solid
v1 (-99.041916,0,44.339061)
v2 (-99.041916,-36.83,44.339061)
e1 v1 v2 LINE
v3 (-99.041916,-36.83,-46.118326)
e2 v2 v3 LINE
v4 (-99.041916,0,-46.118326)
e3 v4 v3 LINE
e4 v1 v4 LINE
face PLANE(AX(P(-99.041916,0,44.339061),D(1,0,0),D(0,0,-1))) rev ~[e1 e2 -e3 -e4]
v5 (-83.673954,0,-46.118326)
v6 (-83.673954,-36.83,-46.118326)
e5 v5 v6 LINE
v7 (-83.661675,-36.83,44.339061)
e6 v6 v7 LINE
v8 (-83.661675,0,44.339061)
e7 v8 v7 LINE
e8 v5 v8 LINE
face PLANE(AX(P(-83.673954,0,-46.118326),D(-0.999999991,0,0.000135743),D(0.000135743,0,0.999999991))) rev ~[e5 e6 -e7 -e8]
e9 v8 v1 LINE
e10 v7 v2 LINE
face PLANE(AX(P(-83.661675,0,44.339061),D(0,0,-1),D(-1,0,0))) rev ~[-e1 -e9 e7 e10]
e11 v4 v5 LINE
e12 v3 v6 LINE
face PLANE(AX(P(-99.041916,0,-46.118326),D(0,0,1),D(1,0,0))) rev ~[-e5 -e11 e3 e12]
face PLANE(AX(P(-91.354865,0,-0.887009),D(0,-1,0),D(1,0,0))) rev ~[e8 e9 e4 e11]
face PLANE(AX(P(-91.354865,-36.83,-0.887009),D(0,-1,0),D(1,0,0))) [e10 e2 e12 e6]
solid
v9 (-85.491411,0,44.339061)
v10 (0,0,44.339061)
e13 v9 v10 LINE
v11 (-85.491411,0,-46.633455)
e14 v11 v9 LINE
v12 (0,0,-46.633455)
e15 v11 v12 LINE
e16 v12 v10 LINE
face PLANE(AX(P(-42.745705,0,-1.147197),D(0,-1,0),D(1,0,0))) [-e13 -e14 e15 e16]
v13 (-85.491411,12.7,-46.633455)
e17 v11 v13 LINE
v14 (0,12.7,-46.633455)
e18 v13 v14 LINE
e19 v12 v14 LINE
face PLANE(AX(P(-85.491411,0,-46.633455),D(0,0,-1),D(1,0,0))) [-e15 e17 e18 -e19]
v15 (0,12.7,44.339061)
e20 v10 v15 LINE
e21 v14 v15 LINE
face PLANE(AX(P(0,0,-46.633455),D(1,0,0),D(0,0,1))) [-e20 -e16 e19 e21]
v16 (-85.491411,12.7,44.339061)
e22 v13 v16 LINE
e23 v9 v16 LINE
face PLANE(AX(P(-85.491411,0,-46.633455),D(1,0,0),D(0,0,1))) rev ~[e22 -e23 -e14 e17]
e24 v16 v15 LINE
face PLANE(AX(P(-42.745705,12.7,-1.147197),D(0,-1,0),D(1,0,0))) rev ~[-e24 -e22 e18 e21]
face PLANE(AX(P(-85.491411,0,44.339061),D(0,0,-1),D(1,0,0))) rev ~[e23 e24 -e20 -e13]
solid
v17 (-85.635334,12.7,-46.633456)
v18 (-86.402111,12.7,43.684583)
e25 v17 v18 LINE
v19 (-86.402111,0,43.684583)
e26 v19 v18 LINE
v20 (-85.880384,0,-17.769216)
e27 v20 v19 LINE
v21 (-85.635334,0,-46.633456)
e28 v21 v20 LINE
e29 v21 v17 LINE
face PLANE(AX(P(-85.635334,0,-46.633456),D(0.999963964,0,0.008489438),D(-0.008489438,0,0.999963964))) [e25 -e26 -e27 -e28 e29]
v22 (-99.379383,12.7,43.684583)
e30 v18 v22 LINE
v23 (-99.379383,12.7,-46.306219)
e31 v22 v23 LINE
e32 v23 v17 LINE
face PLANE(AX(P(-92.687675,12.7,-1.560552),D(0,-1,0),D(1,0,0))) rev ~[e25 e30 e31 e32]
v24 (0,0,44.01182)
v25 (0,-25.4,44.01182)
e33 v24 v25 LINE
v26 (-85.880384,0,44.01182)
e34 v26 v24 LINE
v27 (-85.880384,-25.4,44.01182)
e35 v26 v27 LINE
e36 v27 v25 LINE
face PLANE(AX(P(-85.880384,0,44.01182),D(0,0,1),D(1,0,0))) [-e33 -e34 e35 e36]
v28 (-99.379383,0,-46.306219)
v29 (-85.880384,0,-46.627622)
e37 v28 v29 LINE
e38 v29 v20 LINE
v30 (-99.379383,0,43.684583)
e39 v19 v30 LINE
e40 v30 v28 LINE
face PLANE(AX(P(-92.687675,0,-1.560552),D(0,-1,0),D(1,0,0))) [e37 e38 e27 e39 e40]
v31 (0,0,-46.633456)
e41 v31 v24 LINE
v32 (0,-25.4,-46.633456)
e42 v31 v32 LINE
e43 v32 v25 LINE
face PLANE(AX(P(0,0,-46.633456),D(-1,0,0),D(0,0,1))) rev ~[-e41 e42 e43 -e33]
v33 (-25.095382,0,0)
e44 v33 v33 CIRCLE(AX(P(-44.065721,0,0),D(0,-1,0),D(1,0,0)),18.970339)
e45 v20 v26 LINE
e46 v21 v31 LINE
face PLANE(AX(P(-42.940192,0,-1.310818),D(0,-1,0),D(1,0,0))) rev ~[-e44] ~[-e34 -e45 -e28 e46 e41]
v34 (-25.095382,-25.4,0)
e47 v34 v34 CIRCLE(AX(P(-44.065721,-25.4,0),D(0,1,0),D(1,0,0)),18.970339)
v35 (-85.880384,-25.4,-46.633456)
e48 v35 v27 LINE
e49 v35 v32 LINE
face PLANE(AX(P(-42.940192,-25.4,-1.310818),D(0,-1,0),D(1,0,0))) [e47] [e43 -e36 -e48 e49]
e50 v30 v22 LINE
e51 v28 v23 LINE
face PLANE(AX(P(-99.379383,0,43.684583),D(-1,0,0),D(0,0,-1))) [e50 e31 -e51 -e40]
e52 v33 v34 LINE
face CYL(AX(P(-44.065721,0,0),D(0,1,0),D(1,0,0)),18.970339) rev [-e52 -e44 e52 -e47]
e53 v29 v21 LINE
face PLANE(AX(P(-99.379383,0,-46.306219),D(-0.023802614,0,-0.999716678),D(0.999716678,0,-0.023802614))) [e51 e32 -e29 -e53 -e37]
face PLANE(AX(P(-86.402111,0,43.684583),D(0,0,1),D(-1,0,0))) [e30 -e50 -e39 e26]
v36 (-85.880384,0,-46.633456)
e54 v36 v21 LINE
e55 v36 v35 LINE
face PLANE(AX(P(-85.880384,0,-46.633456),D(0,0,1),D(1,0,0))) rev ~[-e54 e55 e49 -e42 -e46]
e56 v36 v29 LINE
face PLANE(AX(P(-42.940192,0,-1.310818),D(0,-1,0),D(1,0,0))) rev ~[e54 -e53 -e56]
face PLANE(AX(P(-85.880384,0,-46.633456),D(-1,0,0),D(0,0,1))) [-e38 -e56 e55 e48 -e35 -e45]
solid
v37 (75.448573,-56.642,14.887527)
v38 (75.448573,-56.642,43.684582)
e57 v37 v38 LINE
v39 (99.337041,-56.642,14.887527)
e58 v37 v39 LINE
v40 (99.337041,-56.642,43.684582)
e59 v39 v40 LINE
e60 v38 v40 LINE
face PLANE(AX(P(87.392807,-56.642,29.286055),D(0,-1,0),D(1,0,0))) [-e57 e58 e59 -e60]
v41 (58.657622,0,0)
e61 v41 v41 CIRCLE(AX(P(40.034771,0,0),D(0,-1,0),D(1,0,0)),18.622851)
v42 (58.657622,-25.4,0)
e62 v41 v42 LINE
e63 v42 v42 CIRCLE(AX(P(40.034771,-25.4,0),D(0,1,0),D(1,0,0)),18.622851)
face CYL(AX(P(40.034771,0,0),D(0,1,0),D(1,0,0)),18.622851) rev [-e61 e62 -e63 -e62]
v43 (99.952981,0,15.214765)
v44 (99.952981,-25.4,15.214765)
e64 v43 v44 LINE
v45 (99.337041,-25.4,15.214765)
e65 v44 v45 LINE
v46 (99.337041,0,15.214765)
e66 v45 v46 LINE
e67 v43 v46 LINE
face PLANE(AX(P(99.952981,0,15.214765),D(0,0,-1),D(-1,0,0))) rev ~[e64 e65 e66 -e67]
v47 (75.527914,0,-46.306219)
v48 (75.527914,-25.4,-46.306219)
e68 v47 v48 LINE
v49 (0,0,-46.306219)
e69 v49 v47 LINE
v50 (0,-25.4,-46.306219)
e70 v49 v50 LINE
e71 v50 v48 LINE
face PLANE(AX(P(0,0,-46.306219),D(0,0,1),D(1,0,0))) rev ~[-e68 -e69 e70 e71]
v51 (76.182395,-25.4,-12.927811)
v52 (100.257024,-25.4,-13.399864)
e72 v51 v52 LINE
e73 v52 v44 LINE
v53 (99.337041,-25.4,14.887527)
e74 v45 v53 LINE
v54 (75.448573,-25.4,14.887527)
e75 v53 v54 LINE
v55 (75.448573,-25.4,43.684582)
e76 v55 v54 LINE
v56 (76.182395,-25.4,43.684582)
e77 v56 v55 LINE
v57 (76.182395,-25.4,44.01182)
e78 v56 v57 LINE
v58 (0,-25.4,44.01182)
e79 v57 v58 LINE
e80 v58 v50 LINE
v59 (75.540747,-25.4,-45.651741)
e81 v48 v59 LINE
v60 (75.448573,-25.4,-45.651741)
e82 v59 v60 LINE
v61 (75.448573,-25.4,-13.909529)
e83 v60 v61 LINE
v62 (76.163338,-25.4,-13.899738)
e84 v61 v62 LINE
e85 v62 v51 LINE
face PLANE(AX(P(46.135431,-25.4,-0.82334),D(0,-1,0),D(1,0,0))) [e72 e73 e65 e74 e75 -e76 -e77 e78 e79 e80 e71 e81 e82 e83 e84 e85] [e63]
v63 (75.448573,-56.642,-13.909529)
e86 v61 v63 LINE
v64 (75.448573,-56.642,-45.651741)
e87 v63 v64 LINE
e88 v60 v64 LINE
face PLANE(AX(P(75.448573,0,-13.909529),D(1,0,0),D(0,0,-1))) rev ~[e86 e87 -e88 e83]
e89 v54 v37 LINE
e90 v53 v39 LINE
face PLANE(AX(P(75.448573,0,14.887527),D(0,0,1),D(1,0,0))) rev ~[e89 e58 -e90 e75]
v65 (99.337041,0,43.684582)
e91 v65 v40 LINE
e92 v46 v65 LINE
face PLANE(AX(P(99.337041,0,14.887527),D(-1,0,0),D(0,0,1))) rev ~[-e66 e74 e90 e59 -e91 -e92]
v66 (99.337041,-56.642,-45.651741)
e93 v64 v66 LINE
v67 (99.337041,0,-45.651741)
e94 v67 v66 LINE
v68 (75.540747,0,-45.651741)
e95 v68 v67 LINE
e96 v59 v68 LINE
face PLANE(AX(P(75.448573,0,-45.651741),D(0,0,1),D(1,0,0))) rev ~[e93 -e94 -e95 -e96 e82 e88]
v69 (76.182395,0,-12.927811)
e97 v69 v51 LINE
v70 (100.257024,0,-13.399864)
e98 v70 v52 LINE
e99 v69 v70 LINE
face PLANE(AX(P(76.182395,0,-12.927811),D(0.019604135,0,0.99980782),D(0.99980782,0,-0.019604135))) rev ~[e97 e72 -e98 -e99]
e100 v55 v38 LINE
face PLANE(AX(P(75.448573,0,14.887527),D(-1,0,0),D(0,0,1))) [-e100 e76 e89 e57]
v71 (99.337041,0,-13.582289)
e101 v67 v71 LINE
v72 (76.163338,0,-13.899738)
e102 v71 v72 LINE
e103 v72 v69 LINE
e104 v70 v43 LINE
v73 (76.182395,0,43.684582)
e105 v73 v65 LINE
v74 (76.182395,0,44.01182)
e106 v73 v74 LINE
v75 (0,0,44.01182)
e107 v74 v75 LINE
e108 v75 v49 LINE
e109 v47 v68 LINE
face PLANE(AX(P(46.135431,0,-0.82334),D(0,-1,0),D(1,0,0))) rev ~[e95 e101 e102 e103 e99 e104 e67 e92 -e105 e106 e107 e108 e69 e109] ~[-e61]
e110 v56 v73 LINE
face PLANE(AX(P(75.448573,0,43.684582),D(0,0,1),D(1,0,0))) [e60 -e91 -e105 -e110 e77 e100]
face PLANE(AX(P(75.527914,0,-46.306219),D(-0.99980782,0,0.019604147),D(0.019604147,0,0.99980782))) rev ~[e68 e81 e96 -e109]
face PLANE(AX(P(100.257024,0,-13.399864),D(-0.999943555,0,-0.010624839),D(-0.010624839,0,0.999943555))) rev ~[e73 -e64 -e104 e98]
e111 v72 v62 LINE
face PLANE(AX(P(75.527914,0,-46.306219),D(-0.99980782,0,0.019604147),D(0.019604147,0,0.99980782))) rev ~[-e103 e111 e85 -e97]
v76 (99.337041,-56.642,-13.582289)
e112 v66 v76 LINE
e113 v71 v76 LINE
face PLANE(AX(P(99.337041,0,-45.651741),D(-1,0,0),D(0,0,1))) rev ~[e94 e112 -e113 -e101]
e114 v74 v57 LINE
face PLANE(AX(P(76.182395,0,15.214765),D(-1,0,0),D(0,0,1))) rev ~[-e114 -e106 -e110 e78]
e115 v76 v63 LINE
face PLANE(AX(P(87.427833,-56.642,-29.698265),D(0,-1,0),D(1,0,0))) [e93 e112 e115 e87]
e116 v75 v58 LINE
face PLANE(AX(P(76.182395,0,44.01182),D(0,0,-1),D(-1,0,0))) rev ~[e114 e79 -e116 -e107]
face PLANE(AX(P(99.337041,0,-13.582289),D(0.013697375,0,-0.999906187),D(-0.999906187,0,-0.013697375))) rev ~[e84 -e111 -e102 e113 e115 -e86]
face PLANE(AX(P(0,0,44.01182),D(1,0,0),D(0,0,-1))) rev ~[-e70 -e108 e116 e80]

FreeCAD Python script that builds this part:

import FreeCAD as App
import Part
import Sketcher
from FreeCAD import Vector
Q = App.Units.Quantity

doc = App.newDocument("Part")
body = doc.addObject("PartDesign::Body", "Body")

# Sketch on XZ plane
sketch1 = body.newObject("Sketcher::SketchObject", "Sketch")
sketch1.AttachmentSupport = (doc.getObject("XZ_Plane"), [""])
sketch1.MapMode = "FlatFace"
sketch1.addGeometry([
    Part.LineSegment(Vector(-85.491411, 44.339061, 0), Vector(-85.491411, -46.633455, 0)),
    Part.LineSegment(Vector(-85.491411, -46.633455, 0), Vector(0, -46.633455, 0)),
    Part.LineSegment(Vector(0, -46.633455, 0), Vector(0, 44.339061, 0)),
    Part.LineSegment(Vector(0, 44.339061, 0), Vector(-85.491411, 44.339061, 0)),
], False)
sketch1.addConstraint([
    Sketcher.Constraint("Coincident", 0, 2, 1, 1),
    Sketcher.Constraint("Coincident", 1, 2, 2, 1),
    Sketcher.Constraint("Coincident", 2, 2, 3, 1),
    Sketcher.Constraint("Coincident", 3, 2, 0, 1),
    Sketcher.Constraint("Vertical", 0),
    Sketcher.Constraint("Horizontal", 1),
    Sketcher.Constraint("Vertical", 2),
    Sketcher.Constraint("Horizontal", 3),
    Sketcher.Constraint("PointOnObject", 1, 2, -2),
    Sketcher.Constraint("DistanceX", 1, 1, 1, 2, Q("85.491411 mm")),
    Sketcher.Constraint("DistanceY", 0, 2, 0, 1, Q("90.972517 mm")),
    Sketcher.Constraint("DistanceY", -1, 1, 2, 2, Q("44.339061 mm")),
])
pad1 = body.newObject("PartDesign::Pad", "Pad")
pad1.Profile = sketch1
pad1.Length = Q("0.5 in")
pad1.Reversed = True
body2 = doc.addObject("PartDesign::Body", "Body001")

# Sketch on XZ plane
sketch2 = body2.newObject("Sketcher::SketchObject", "Sketch001")
sketch2.AttachmentSupport = (doc.getObject("XZ_Plane001"), [""])
sketch2.MapMode = "FlatFace"
sketch2.addGeometry([
    Part.LineSegment(Vector(76.182395, 44.01182, 0), Vector(0, 44.01182, 0)),  # 0
    Part.LineSegment(Vector(0, 44.01182, 0), Vector(0, -46.306219, 0)),  # 1
    Part.LineSegment(Vector(0, -46.306219, 0), Vector(75.527914, -46.306219, 0)),  # 2
    Part.LineSegment(Vector(75.527914, -46.306219, 0), Vector(76.182395, -12.927811, 0)),  # 3
    Part.LineSegment(Vector(76.182395, -12.927811, 0), Vector(100.257024, -13.399864, 0)),  # 4
    Part.LineSegment(Vector(100.257024, -13.399864, 0), Vector(99.952981, 15.214765, 0)),  # 5
    Part.LineSegment(Vector(99.952981, 15.214765, 0), Vector(76.182395, 15.214765, 0)),  # 6
    Part.LineSegment(Vector(76.182395, 15.214765, 0), Vector(76.182395, 44.01182, 0)),  # 7
], False)
sketch2.addConstraint([
    Sketcher.Constraint("Coincident", 0, 2, 1, 1),
    Sketcher.Constraint("Coincident", 1, 2, 2, 1),
    Sketcher.Constraint("Coincident", 2, 2, 3, 1),
    Sketcher.Constraint("Coincident", 3, 2, 4, 1),
    Sketcher.Constraint("Coincident", 4, 2, 5, 1),
    Sketcher.Constraint("Coincident", 5, 2, 6, 1),
    Sketcher.Constraint("Coincident", 6, 2, 7, 1),
    Sketcher.Constraint("Coincident", 7, 2, 0, 1),
    Sketcher.Constraint("Horizontal", 0),
    Sketcher.Constraint("Vertical", 1),
    Sketcher.Constraint("Horizontal", 2),
    Sketcher.Constraint("Horizontal", 6),
    Sketcher.Constraint("Vertical", 7),
    Sketcher.Constraint("PointOnObject", 0, 2, -2),
    Sketcher.Constraint("Perpendicular", 3, 4),
    Sketcher.Constraint("Vertical", 3, 2, 6, 2),
    Sketcher.Constraint("DistanceY", 1, 2, 1, 1, Q("90.318039 mm")),
    Sketcher.Constraint("DistanceX", 0, 2, 0, 1, Q("76.182395 mm")),
    Sketcher.Constraint("DistanceX", 2, 1, 2, 2, Q("75.527914 mm")),
    Sketcher.Constraint("DistanceX", 6, 2, 6, 1, Q("23.770586 mm")),
    Sketcher.Constraint("DistanceY", 7, 1, 7, 2, Q("28.797055 mm")),
    Sketcher.Constraint("DistanceY", -1, 1, 0, 2, Q("44.01182 mm")),
    Sketcher.Constraint("DistanceY", 3, 2, -1, 1, Q("12.927811 mm")),
    Sketcher.Constraint("DistanceX", 3, 2, 4, 2, Q("24.074629 mm")),
])
pad2 = body2.newObject("PartDesign::Pad", "Pad001")
pad2.Profile = sketch2
pad2.Length = Q("1 in")

# Sketch on XZ plane
sketch3 = body2.newObject("Sketcher::SketchObject", "Sketch002")
sketch3.AttachmentSupport = (doc.getObject("XZ_Plane001"), [""])
sketch3.MapMode = "FlatFace"
sketch3.addGeometry([
    Part.LineSegment(Vector(75.448573, 43.684582, 0), Vector(75.448573, 14.887527, 0)),  # 0
    Part.LineSegment(Vector(75.448573, 14.887527, 0), Vector(99.337041, 14.887527, 0)),  # 1
    Part.LineSegment(Vector(99.337041, 14.887527, 0), Vector(99.337041, 43.684582, 0)),  # 2
    Part.LineSegment(Vector(99.337041, 43.684582, 0), Vector(75.448573, 43.684582, 0)),  # 3
    Part.LineSegment(Vector(75.448573, -13.909529, 0), Vector(75.448573, -45.651741, 0)),  # 4
    Part.LineSegment(Vector(75.448573, -45.651741, 0), Vector(99.337041, -45.651741, 0)),  # 5
    Part.LineSegment(Vector(99.337041, -45.651741, 0), Vector(99.337041, -13.582289, 0)),  # 6
    Part.LineSegment(Vector(99.337041, -13.582289, 0), Vector(75.448573, -13.909529, 0)),  # 7
], False)
sketch3.addConstraint([
    Sketcher.Constraint("Coincident", 0, 2, 1, 1),
    Sketcher.Constraint("Coincident", 1, 2, 2, 1),
    Sketcher.Constraint("Coincident", 2, 2, 3, 1),
    Sketcher.Constraint("Coincident", 3, 2, 0, 1),
    Sketcher.Constraint("Coincident", 4, 2, 5, 1),
    Sketcher.Constraint("Coincident", 5, 2, 6, 1),
    Sketcher.Constraint("Coincident", 6, 2, 7, 1),
    Sketcher.Constraint("Coincident", 7, 2, 4, 1),
    Sketcher.Constraint("Vertical", 0),
    Sketcher.Constraint("Horizontal", 1),
    Sketcher.Constraint("Vertical", 2),
    Sketcher.Constraint("Horizontal", 3),
    Sketcher.Constraint("Vertical", 4),
    Sketcher.Constraint("Horizontal", 5),
    Sketcher.Constraint("Vertical", 6),
    Sketcher.Constraint("Vertical", 3, 2, 4, 2),
    Sketcher.Constraint("Vertical", 2, 2, 5, 2),
    Sketcher.Constraint("DistanceX", 1, 1, 1, 2, Q("23.888468 mm")),
    Sketcher.Constraint("DistanceY", 6, 1, 6, 2, Q("32.069452 mm")),
    Sketcher.Constraint("Distance", 7, Q("23.890709 mm")),
    Sketcher.Constraint("DistanceY", 0, 2, 0, 1, Q("28.797055 mm")),
    Sketcher.Constraint("DistanceX", -1, 1, 1, 2, Q("99.337041 mm")),
    Sketcher.Constraint("DistanceY", 4, 2, -1, 1, Q("45.651741 mm")),
    Sketcher.Constraint("DistanceY", 4, 2, 0, 2, Q("60.539268 mm")),
])
pad3 = body2.newObject("PartDesign::Pad", "Pad002")
pad3.Profile = sketch3
pad3.Length = Q("2.23 in")
body3 = doc.addObject("PartDesign::Body", "Body002")

# Sketch on XZ plane
sketch4 = body3.newObject("Sketcher::SketchObject", "Sketch003")
sketch4.AttachmentSupport = (doc.getObject("XZ_Plane002"), [""])
sketch4.MapMode = "FlatFace"
sketch4.addGeometry([
    Part.LineSegment(Vector(-85.880384, 44.01182, 0), Vector(-85.880384, -46.633456, 0)),
    Part.LineSegment(Vector(-85.880384, -46.633456, 0), Vector(0, -46.633456, 0)),
    Part.LineSegment(Vector(0, -46.633456, 0), Vector(0, 44.01182, 0)),
    Part.LineSegment(Vector(0, 44.01182, 0), Vector(-85.880384, 44.01182, 0)),
], False)
sketch4.addConstraint([
    Sketcher.Constraint("Coincident", 0, 2, 1, 1),
    Sketcher.Constraint("Coincident", 1, 2, 2, 1),
    Sketcher.Constraint("Coincident", 2, 2, 3, 1),
    Sketcher.Constraint("Coincident", 3, 2, 0, 1),
    Sketcher.Constraint("Vertical", 0),
    Sketcher.Constraint("Horizontal", 1),
    Sketcher.Constraint("Vertical", 2),
    Sketcher.Constraint("Horizontal", 3),
    Sketcher.Constraint("PointOnObject", 1, 2, -2),
    Sketcher.Constraint("DistanceX", 1, 1, 1, 2, Q("85.880384 mm")),
    Sketcher.Constraint("DistanceY", 0, 2, 0, 1, Q("90.645276 mm")),
    Sketcher.Constraint("DistanceY", -1, 1, 2, 2, Q("44.01182 mm")),
])
pad4 = body3.newObject("PartDesign::Pad", "Pad003")
pad4.Profile = sketch4
pad4.Length = Q("1 in")

# Sketch on XZ plane
sketch5 = body3.newObject("Sketcher::SketchObject", "Sketch004")
sketch5.AttachmentSupport = (doc.getObject("XZ_Plane002"), [""])
sketch5.MapMode = "FlatFace"
sketch5.addGeometry([
    Part.LineSegment(Vector(-85.635334, -46.633456, 0), Vector(-86.402111, 43.684583, 0)),
    Part.LineSegment(Vector(-86.402111, 43.684583, 0), Vector(-99.379383, 43.684583, 0)),
    Part.LineSegment(Vector(-99.379383, 43.684583, 0), Vector(-99.379383, -46.306219, 0)),
    Part.LineSegment(Vector(-99.379383, -46.306219, 0), Vector(-85.635334, -46.633456, 0)),
], False)
sketch5.addConstraint([
    Sketcher.Constraint("Coincident", 0, 2, 1, 1),
    Sketcher.Constraint("Coincident", 1, 2, 2, 1),
    Sketcher.Constraint("Coincident", 2, 2, 3, 1),
    Sketcher.Constraint("Coincident", 3, 2, 0, 1),
    Sketcher.Constraint("Horizontal", 1),
    Sketcher.Constraint("Vertical", 2),
    Sketcher.Constraint("DistanceX", 1, 2, 1, 1, Q("12.977272 mm")),
    Sketcher.Constraint("DistanceY", 2, 2, 2, 1, Q("89.990802 mm")),
    Sketcher.Constraint("DistanceX", 0, 2, -1, 1, Q("86.402111 mm")),
    Sketcher.Constraint("DistanceY", 2, 2, -1, 1, Q("46.306219 mm")),
    Sketcher.Constraint("DistanceX", 2, 2, 3, 2, Q("13.744049 mm")),
    Sketcher.Constraint("DistanceY", 3, 2, 0, 2, Q("90.318039 mm")),
])
pad5 = body3.newObject("PartDesign::Pad", "Pad004")
pad5.Profile = sketch5
pad5.Length = Q("0.5 in")
pad5.Reversed = True
body4 = doc.addObject("PartDesign::Body", "Body003")

# Sketch on XZ plane
sketch6 = body4.newObject("Sketcher::SketchObject", "Sketch005")
sketch6.AttachmentSupport = (doc.getObject("XZ_Plane003"), [""])
sketch6.MapMode = "FlatFace"
sketch6.addGeometry([
    Part.LineSegment(Vector(-83.673954, -46.118326, 0), Vector(-83.661675, 44.339061, 0)),
    Part.LineSegment(Vector(-83.661675, 44.339061, 0), Vector(-99.041916, 44.339061, 0)),
    Part.LineSegment(Vector(-99.041916, 44.339061, 0), Vector(-99.041916, -46.118326, 0)),
    Part.LineSegment(Vector(-99.041916, -46.118326, 0), Vector(-83.673954, -46.118326, 0)),
], False)
sketch6.addConstraint([
    Sketcher.Constraint("Coincident", 0, 2, 1, 1),
    Sketcher.Constraint("Coincident", 1, 2, 2, 1),
    Sketcher.Constraint("Coincident", 2, 2, 3, 1),
    Sketcher.Constraint("Coincident", 3, 2, 0, 1),
    Sketcher.Constraint("Horizontal", 1),
    Sketcher.Constraint("Vertical", 2),
    Sketcher.Constraint("Horizontal", 3),
    Sketcher.Constraint("DistanceX", 1, 2, 1, 1, Q("15.380241 mm")),
    Sketcher.Constraint("DistanceX", 3, 1, 3, 2, Q("15.367962 mm")),
    Sketcher.Constraint("DistanceY", 2, 2, 2, 1, Q("90.457387 mm")),
    Sketcher.Constraint("DistanceY", -1, 1, 0, 2, Q("44.339061 mm")),
    Sketcher.Constraint("DistanceX", 0, 2, -1, 1, Q("83.661675 mm")),
])
pad6 = body4.newObject("PartDesign::Pad", "Pad005")
pad6.Profile = sketch6
pad6.Length = Q("1.45 in")
body5 = doc.addObject("PartDesign::Body", "Body004")
body5.AllowCompound = True

# Sketch on XZ plane
sketch7 = body5.newObject("Sketcher::SketchObject", "Sketch006")
sketch7.AttachmentSupport = (doc.getObject("XZ_Plane004"), [""])
sketch7.MapMode = "FlatFace"
sketch7.addGeometry([
    Part.Circle(Vector(40.034771, 0, 0), Vector(0, 0, 1), 18.622851),
    Part.Circle(Vector(-44.065721, 0, 0), Vector(0, 0, 1), 18.970339),
], False)
sketch7.addConstraint([
    Sketcher.Constraint("PointOnObject", 0, 3, -1),
    Sketcher.Constraint("PointOnObject", 1, 3, -1),
    Sketcher.Constraint("Diameter", 0, Q("37.245702 mm")),
    Sketcher.Constraint("Diameter", 1, Q("37.940678 mm")),
    Sketcher.Constraint("DistanceX", -1, 1, 0, 3, Q("40.034771 mm")),
    Sketcher.Constraint("DistanceX", 1, 3, -1, 1, Q("44.065721 mm")),
])
pad7 = body5.newObject("PartDesign::Pad", "Pad006")
pad7.Profile = sketch7
pad7.Length = Q("3.79 in")
doc.recompute()

body6 = doc.addObject("PartDesign::Body", "Body005")
body6.BaseFeature = body5
boolean = body2.newObject("PartDesign::Boolean", "Boolean")
boolean.Type = "Cut"
boolean.addObjects([body6])
doc.recompute()

boolean2 = body3.newObject("PartDesign::Boolean", "Boolean001")
boolean2.Type = "Cut"
boolean2.addObjects([body5])

doc.recompute()
